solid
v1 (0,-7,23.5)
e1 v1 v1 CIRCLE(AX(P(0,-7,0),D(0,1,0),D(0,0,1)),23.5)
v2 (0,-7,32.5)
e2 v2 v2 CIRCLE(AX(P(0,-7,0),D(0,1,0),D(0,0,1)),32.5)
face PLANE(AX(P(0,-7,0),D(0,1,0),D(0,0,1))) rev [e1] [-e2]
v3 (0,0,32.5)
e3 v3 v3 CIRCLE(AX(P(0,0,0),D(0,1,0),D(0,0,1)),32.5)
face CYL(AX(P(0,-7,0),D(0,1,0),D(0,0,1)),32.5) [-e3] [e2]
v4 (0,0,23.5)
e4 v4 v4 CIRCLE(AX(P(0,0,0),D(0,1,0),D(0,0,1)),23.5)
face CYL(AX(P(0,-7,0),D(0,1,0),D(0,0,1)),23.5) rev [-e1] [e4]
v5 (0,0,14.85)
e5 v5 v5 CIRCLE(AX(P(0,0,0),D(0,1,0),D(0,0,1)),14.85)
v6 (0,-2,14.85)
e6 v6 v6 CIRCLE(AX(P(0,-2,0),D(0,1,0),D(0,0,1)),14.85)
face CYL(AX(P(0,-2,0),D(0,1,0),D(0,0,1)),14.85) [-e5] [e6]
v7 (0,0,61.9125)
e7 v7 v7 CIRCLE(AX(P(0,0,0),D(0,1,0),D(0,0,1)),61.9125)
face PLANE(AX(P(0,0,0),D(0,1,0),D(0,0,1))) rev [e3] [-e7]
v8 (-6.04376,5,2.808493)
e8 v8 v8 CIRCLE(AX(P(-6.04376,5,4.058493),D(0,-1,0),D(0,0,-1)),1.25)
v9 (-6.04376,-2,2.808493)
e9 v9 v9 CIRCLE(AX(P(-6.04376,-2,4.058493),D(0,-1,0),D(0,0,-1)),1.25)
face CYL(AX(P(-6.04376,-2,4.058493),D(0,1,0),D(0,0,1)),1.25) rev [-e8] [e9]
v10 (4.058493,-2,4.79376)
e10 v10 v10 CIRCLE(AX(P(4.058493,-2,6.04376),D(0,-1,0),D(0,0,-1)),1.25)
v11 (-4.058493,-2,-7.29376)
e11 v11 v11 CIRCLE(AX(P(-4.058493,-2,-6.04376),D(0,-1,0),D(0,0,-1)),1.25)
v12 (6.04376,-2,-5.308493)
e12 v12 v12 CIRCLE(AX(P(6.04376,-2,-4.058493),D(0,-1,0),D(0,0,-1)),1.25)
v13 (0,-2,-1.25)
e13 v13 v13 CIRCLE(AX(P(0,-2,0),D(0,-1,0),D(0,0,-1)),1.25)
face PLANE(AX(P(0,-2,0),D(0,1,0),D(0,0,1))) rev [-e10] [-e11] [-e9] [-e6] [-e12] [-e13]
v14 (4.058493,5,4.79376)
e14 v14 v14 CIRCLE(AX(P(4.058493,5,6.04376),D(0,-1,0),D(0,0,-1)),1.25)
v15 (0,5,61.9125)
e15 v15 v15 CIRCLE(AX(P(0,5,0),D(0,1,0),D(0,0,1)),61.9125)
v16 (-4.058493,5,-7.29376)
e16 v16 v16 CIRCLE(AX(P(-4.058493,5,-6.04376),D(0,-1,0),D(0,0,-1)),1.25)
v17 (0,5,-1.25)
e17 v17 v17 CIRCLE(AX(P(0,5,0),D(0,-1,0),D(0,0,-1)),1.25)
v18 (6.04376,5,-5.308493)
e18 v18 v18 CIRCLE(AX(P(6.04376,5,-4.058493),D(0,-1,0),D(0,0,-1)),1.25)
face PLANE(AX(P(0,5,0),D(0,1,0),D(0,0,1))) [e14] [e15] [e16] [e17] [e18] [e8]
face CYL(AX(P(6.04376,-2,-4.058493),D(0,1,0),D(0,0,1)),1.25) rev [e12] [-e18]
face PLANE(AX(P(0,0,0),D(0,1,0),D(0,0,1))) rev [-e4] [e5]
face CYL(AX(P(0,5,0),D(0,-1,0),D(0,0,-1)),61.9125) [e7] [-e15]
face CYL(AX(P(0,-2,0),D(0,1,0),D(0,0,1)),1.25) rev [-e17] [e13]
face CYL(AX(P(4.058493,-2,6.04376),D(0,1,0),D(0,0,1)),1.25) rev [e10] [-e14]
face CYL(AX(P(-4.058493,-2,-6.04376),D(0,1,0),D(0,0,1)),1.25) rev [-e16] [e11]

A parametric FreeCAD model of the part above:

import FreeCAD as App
import Part
import Sketcher
from FreeCAD import Vector
Q = App.Units.Quantity

doc = App.newDocument("Part")
body = doc.addObject("PartDesign::Body", "Body")

sketch1 = body.newObject("Sketcher::SketchObject", "Sketch")
sketch1.AttachmentSupport = (doc.getObject("XZ_Plane"), [""])
sketch1.MapMode = "FlatFace"
sketch1.addGeometry(Part.Circle(Vector(0, 0, 0), Vector(0, 0, 1), 62), False)
sketch1.addConstraint([
    Sketcher.Constraint("Coincident", 0, 3, -1, 1),
    Sketcher.Constraint("Diameter", 0, Q("123.825 mm")),
])
pad1 = body.newObject("PartDesign::Pad", "Pad")
pad1.Profile = sketch1
pad1.Length = 5
pad1.Reversed = True

sketch2 = body.newObject("Sketcher::SketchObject", "Sketch001")
sketch2.AttachmentSupport = (doc.getObject("XZ_Plane"), [""])
sketch2.MapMode = "FlatFace"
sketch2.addGeometry([
    Part.Circle(Vector(0, 0, 0), Vector(0, 0, 1), 32),
    Part.Circle(Vector(0, 0, 0), Vector(0, 0, 1), 24),
], False)
sketch2.addConstraint([
    Sketcher.Constraint("Coincident", 0, 3, -1, 1),
    Sketcher.Constraint("Coincident", 1, 3, -1, 1),
    Sketcher.Constraint("Diameter", 0, Q("65 mm")),
    Sketcher.Constraint("Diameter", 1, Q("47 mm")),
])
pad2 = body.newObject("PartDesign::Pad", "Pad001")
pad2.Profile = sketch2
pad2.Length = 7

sketch3 = body.newObject("Sketcher::SketchObject", "Sketch002")
sketch3.AttachmentSupport = (doc.getObject("XZ_Plane"), [""])
sketch3.MapMode = "FlatFace"
sketch3.addGeometry(Part.Circle(Vector(0, 0, 0), Vector(0, 0, 1), 15), False)
sketch3.addConstraint([
    Sketcher.Constraint("Coincident", 0, 3, -1, 1),
    Sketcher.Constraint("Diameter", 0, Q("29.7 mm")),
])
pad3 = body.newObject("PartDesign::Pad", "Pad002")
pad3.Profile = sketch3
pad3.Length = 2

sketch4 = body.newObject("Sketcher::SketchObject", "Sketch003")
sketch4.AttachmentSupport = (doc.getObject("XZ_Plane"), [""])
sketch4.MapMode = "FlatFace"
sketch4.addGeometry([
    Part.Circle(Vector(0, 0, 0), Vector(0, 0, 1), 1.2),
    Part.Circle(Vector(4.1, 6, 0), Vector(0, 0, 1), 1.2),
    Part.Circle(Vector(6, -4.1, 0), Vector(0, 0, 1), 1.2),
    Part.Circle(Vector(-4.1, -6, 0), Vector(0, 0, 1), 1.2),
    Part.Circle(Vector(-6, 4.1, 0), Vector(0, 0, 1), 1.2),
], False)
sketch4.addConstraint([
    Sketcher.Constraint("Coincident", 0, 3, -1, 1),
    Sketcher.Constraint("Equal", 0, 1),
    Sketcher.Constraint("Equal", 1, 2),
    Sketcher.Constraint("Equal", 2, 3),
    Sketcher.Constraint("Equal", 3, 4),
    Sketcher.Constraint("Symmetric", 1, 3, 3, 3, -1, 1),
    Sketcher.Constraint("Symmetric", 2, 3, 4, 3, -1, 1),
    Sketcher.Constraint("Diameter", 0, Q("2.5 mm")),
    Sketcher.Constraint("DistanceY", -1, 1, 1, 3, Q("6.04376 mm")),
    Sketcher.Constraint("DistanceX", -1, 1, 2, 3, Q("6.04376 mm")),
    Sketcher.Constraint("DistanceX", -1, 1, 1, 3, Q("4.058493 mm")),
    Sketcher.Constraint("DistanceY", 2, 3, -1, 1, Q("4.058493 mm")),
])
pocket1 = body.newObject("PartDesign::Pocket", "Pocket")
pocket1.Profile = sketch4
pocket1.Type = "ThroughAll"
pocket1.Midplane = True

doc.recompute()
